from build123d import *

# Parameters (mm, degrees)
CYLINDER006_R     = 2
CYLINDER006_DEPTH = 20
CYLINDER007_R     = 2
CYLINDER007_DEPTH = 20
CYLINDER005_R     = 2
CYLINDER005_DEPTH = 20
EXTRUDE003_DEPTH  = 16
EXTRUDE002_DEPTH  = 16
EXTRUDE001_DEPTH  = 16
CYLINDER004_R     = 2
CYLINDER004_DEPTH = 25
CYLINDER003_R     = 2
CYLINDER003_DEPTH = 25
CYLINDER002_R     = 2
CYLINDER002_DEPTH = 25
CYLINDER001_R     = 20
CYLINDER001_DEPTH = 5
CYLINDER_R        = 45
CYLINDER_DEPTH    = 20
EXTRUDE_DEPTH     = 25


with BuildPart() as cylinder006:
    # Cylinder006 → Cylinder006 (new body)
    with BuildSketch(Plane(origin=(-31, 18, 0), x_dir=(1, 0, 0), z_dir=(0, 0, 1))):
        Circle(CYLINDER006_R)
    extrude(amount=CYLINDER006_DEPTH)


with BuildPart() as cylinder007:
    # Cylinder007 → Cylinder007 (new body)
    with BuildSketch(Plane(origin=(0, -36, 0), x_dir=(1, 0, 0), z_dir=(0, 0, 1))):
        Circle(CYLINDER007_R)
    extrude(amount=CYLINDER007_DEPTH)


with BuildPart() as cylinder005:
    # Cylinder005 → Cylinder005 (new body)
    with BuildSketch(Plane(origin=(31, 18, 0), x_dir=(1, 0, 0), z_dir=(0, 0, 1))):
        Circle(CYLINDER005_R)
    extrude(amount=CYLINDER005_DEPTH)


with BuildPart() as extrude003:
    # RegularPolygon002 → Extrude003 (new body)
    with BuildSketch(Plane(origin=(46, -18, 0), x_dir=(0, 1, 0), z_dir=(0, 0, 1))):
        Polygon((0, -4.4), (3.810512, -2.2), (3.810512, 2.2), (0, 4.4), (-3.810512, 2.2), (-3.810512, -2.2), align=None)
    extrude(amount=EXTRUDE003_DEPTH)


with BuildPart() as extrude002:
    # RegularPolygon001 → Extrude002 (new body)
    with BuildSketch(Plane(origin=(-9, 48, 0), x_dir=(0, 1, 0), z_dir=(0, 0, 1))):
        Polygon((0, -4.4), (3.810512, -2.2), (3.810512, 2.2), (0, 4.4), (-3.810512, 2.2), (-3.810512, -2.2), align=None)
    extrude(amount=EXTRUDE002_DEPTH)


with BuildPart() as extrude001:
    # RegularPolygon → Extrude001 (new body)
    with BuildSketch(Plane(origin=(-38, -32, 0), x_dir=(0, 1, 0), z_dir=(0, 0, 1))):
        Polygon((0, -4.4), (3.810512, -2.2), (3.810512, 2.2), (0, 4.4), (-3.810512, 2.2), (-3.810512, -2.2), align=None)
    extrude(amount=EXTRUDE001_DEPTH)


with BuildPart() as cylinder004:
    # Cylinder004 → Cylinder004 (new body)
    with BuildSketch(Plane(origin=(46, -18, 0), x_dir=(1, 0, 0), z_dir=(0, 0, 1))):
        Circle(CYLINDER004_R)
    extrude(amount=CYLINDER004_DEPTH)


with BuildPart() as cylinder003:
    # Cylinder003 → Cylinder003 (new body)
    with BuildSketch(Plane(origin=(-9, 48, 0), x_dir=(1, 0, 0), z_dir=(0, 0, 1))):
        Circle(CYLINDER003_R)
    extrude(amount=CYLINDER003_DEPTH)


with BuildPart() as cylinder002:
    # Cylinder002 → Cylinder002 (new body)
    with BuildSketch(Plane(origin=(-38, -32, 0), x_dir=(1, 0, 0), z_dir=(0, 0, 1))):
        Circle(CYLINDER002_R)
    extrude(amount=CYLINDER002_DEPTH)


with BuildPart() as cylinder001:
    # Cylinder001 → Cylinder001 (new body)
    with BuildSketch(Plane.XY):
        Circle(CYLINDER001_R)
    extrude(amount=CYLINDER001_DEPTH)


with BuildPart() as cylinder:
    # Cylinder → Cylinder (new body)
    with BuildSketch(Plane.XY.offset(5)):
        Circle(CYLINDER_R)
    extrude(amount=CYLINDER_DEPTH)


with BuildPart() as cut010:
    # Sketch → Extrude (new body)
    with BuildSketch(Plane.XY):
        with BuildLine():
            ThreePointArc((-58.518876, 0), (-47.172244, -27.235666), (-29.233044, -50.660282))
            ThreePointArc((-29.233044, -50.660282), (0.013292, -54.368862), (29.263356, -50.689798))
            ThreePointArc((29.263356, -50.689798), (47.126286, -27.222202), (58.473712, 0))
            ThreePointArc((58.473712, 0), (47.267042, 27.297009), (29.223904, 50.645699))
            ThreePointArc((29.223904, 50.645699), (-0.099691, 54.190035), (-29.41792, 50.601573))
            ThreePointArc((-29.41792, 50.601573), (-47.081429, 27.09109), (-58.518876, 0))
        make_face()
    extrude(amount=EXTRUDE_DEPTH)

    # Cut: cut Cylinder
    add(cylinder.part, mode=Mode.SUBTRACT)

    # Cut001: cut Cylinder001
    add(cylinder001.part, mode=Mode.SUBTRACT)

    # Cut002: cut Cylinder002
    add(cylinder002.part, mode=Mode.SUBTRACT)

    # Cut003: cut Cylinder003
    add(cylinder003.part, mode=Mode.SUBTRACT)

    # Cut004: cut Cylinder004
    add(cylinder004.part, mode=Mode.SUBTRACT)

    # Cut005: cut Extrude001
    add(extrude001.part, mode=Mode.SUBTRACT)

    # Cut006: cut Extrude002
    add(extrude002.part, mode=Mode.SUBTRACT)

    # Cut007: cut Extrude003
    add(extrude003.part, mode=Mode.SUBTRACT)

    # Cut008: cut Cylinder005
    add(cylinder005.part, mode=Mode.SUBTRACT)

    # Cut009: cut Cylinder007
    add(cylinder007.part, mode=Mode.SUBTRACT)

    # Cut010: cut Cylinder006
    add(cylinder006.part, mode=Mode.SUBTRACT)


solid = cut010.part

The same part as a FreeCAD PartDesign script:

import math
import FreeCAD as App
import Part
import Sketcher
from FreeCAD import Vector
Q = App.Units.Quantity


def add_polygon(sketch, points):
    """Adds a closed chain of lines whose ends are joined by coincident constraints."""
    first, n = sketch.GeometryCount, len(points)
    for a, b in zip(points, points[1:] + points[:1]):
        sketch.addGeometry(Part.LineSegment(App.Vector(*a, 0), App.Vector(*b, 0)), False)
    for i in range(n):
        sketch.addConstraint(Sketcher.Constraint("Coincident", first + i, 2, first + (i + 1) % n, 1))

doc = App.newDocument("Part")
body = doc.addObject("PartDesign::Body", "Body")

# Sketch on XY plane
sketch1 = doc.addObject("Sketcher::SketchObject", "Sketch")
body.addObject(sketch1)
sketch1.AttachmentSupport = (doc.XY_Plane, [""])
sketch1.MapMode = "FlatFace"
sketch1.addGeometry(Part.Circle(Vector(-31, 18, 0), Vector(0, 0, 1), 2), False)
sketch1.addConstraint([
    Sketcher.Constraint("Diameter", 0, Q("4 mm")),
    Sketcher.Constraint("DistanceX", 0, 3, -1, 1, Q("31 mm")),
    Sketcher.Constraint("DistanceY", -1, 1, 0, 3, Q("18 mm")),
])
pad1 = doc.addObject("PartDesign::Pad", "Pad")
body.addObject(pad1)
pad1.Profile = sketch1
pad1.Length = 20
body2 = doc.addObject("PartDesign::Body", "Body001")

# Sketch on XY plane
sketch2 = doc.addObject("Sketcher::SketchObject", "Sketch001")
body2.addObject(sketch2)
sketch2.AttachmentSupport = (doc.getObject("XY_Plane001"), [""])
sketch2.MapMode = "FlatFace"
sketch2.addGeometry(Part.Circle(Vector(0, -36, 0), Vector(0, 0, 1), 2), False)
sketch2.addConstraint([
    Sketcher.Constraint("PointOnObject", 0, 3, -2),
    Sketcher.Constraint("Diameter", 0, Q("4 mm")),
    Sketcher.Constraint("DistanceY", 0, 3, -1, 1, Q("36 mm")),
])
pad2 = doc.addObject("PartDesign::Pad", "Pad001")
body2.addObject(pad2)
pad2.Profile = sketch2
pad2.Length = 20
body3 = doc.addObject("PartDesign::Body", "Body002")

# Sketch on XY plane
sketch3 = doc.addObject("Sketcher::SketchObject", "Sketch002")
body3.addObject(sketch3)
sketch3.AttachmentSupport = (doc.getObject("XY_Plane002"), [""])
sketch3.MapMode = "FlatFace"
sketch3.addGeometry(Part.Circle(Vector(31, 18, 0), Vector(0, 0, 1), 2), False)
sketch3.addConstraint([
    Sketcher.Constraint("Diameter", 0, Q("4 mm")),
    Sketcher.Constraint("DistanceX", -1, 1, 0, 3, Q("31 mm")),
    Sketcher.Constraint("DistanceY", -1, 1, 0, 3, Q("18 mm")),
])
pad3 = doc.addObject("PartDesign::Pad", "Pad002")
body3.addObject(pad3)
pad3.Profile = sketch3
pad3.Length = 20
body4 = doc.addObject("PartDesign::Body", "Body003")

# Sketch on XY plane
sketch4 = doc.addObject("Sketcher::SketchObject", "Sketch003")
body4.addObject(sketch4)
sketch4.AttachmentSupport = (doc.getObject("XY_Plane003"), [""])
sketch4.MapMode = "FlatFace"
add_polygon(sketch4, [(50.4, -18), (48.2, -14.189488), (43.8, -14.189488), (41.6, -18), (43.8, -21.810512), (48.2, -21.810512)])  # lines 0-5
sketch4.addConstraint([
    Sketcher.Constraint("Horizontal", 1),
    Sketcher.Constraint("Horizontal", 4),
    Sketcher.Constraint("Parallel", 0, 3),
    Sketcher.Constraint("Parallel", 2, 5),
    Sketcher.Constraint("Horizontal", 2, 2, 5, 2),
    Sketcher.Constraint("Vertical", 1, 2, 3, 2),
    Sketcher.Constraint("Vertical", 0, 2, 4, 2),
    Sketcher.Constraint("Angle", 0, Q("119.999999 deg")),
    Sketcher.Constraint("DistanceX", 1, 2, 1, 1, Q("4.4 mm")),
    Sketcher.Constraint("DistanceY", 2, 2, -1, 1, Q("18 mm")),
    Sketcher.Constraint("Distance", 0, Q("4.4 mm")),
    Sketcher.Constraint("DistanceX", -1, 1, 0, 2, Q("48.2 mm")),
])
pad4 = doc.addObject("PartDesign::Pad", "Pad003")
body4.addObject(pad4)
pad4.Profile = sketch4
pad4.Length = 16
body5 = doc.addObject("PartDesign::Body", "Body004")

# Sketch on XY plane
sketch5 = doc.addObject("Sketcher::SketchObject", "Sketch004")
body5.addObject(sketch5)
sketch5.AttachmentSupport = (doc.getObject("XY_Plane004"), [""])
sketch5.MapMode = "FlatFace"
add_polygon(sketch5, [(-4.6, 48), (-6.8, 51.810512), (-11.2, 51.810512), (-13.4, 48), (-11.2, 44.189488), (-6.8, 44.189488)])  # lines 0-5
sketch5.addConstraint([
    Sketcher.Constraint("Horizontal", 1),
    Sketcher.Constraint("Horizontal", 4),
    Sketcher.Constraint("Parallel", 0, 3),
    Sketcher.Constraint("Parallel", 2, 5),
    Sketcher.Constraint("Horizontal", 2, 2, 5, 2),
    Sketcher.Constraint("Vertical", 1, 2, 3, 2),
    Sketcher.Constraint("Vertical", 0, 2, 4, 2),
    Sketcher.Constraint("Angle", 0, Q("119.999999 deg")),
    Sketcher.Constraint("DistanceX", 1, 2, 1, 1, Q("4.4 mm")),
    Sketcher.Constraint("DistanceY", -1, 1, 2, 2, Q("48 mm")),
    Sketcher.Constraint("Distance", 0, Q("4.4 mm")),
    Sketcher.Constraint("DistanceX", 0, 2, -1, 1, Q("6.8 mm")),
])
pad5 = doc.addObject("PartDesign::Pad", "Pad004")
body5.addObject(pad5)
pad5.Profile = sketch5
pad5.Length = 16
body6 = doc.addObject("PartDesign::Body", "Body005")

# Sketch on XY plane
sketch6 = doc.addObject("Sketcher::SketchObject", "Sketch005")
body6.addObject(sketch6)
sketch6.AttachmentSupport = (doc.getObject("XY_Plane005"), [""])
sketch6.MapMode = "FlatFace"
add_polygon(sketch6, [(-33.6, -32), (-35.8, -28.189488), (-40.2, -28.189488), (-42.4, -32), (-40.2, -35.810512), (-35.8, -35.810512)])  # lines 0-5
sketch6.addConstraint([
    Sketcher.Constraint("Horizontal", 1),
    Sketcher.Constraint("Horizontal", 4),
    Sketcher.Constraint("Parallel", 0, 3),
    Sketcher.Constraint("Parallel", 2, 5),
    Sketcher.Constraint("Horizontal", 2, 2, 5, 2),
    Sketcher.Constraint("Vertical", 1, 2, 3, 2),
    Sketcher.Constraint("Vertical", 0, 2, 4, 2),
    Sketcher.Constraint("Angle", 0, Q("119.999999 deg")),
    Sketcher.Constraint("DistanceX", 1, 2, 1, 1, Q("4.4 mm")),
    Sketcher.Constraint("DistanceY", 2, 2, -1, 1, Q("32 mm")),
    Sketcher.Constraint("Distance", 0, Q("4.4 mm")),
    Sketcher.Constraint("DistanceX", 0, 2, -1, 1, Q("35.8 mm")),
])
pad6 = doc.addObject("PartDesign::Pad", "Pad005")
body6.addObject(pad6)
pad6.Profile = sketch6
pad6.Length = 16
body7 = doc.addObject("PartDesign::Body", "Body006")

# Sketch on XY plane
sketch7 = doc.addObject("Sketcher::SketchObject", "Sketch006")
body7.addObject(sketch7)
sketch7.AttachmentSupport = (doc.getObject("XY_Plane006"), [""])
sketch7.MapMode = "FlatFace"
sketch7.addGeometry(Part.Circle(Vector(46, -18, 0), Vector(0, 0, 1), 2), False)
sketch7.addConstraint([
    Sketcher.Constraint("Diameter", 0, Q("4 mm")),
    Sketcher.Constraint("DistanceX", -1, 1, 0, 3, Q("46 mm")),
    Sketcher.Constraint("DistanceY", 0, 3, -1, 1, Q("18 mm")),
])
pad7 = doc.addObject("PartDesign::Pad", "Pad006")
body7.addObject(pad7)
pad7.Profile = sketch7
pad7.Length = 25
body8 = doc.addObject("PartDesign::Body", "Body007")

# Sketch on XY plane
sketch8 = doc.addObject("Sketcher::SketchObject", "Sketch007")
body8.addObject(sketch8)
sketch8.AttachmentSupport = (doc.getObject("XY_Plane007"), [""])
sketch8.MapMode = "FlatFace"
sketch8.addGeometry(Part.Circle(Vector(-9, 48, 0), Vector(0, 0, 1), 2), False)
sketch8.addConstraint([
    Sketcher.Constraint("Diameter", 0, Q("4 mm")),
    Sketcher.Constraint("DistanceX", 0, 3, -1, 1, Q("9 mm")),
    Sketcher.Constraint("DistanceY", -1, 1, 0, 3, Q("48 mm")),
])
pad8 = doc.addObject("PartDesign::Pad", "Pad007")
body8.addObject(pad8)
pad8.Profile = sketch8
pad8.Length = 25
body9 = doc.addObject("PartDesign::Body", "Body008")

# Sketch on XY plane
sketch9 = doc.addObject("Sketcher::SketchObject", "Sketch008")
body9.addObject(sketch9)
sketch9.AttachmentSupport = (doc.getObject("XY_Plane008"), [""])
sketch9.MapMode = "FlatFace"
sketch9.addGeometry(Part.Circle(Vector(-38, -32, 0), Vector(0, 0, 1), 2), False)
sketch9.addConstraint([
    Sketcher.Constraint("Diameter", 0, Q("4 mm")),
    Sketcher.Constraint("DistanceX", 0, 3, -1, 1, Q("38 mm")),
    Sketcher.Constraint("DistanceY", 0, 3, -1, 1, Q("32 mm")),
])
pad9 = doc.addObject("PartDesign::Pad", "Pad008")
body9.addObject(pad9)
pad9.Profile = sketch9
pad9.Length = 25
body10 = doc.addObject("PartDesign::Body", "Body009")

# Sketch on XY plane
sketch10 = doc.addObject("Sketcher::SketchObject", "Sketch009")
body10.addObject(sketch10)
sketch10.AttachmentSupport = (doc.getObject("XY_Plane009"), [""])
sketch10.MapMode = "FlatFace"
sketch10.addGeometry(Part.Circle(Vector(0, 0, 0), Vector(0, 0, 1), 20), False)
sketch10.addConstraint([
    Sketcher.Constraint("Coincident", 0, 3, -1, 1),
    Sketcher.Constraint("Diameter", 0, Q("40 mm")),
])
pad10 = doc.addObject("PartDesign::Pad", "Pad009")
body10.addObject(pad10)
pad10.Profile = sketch10
pad10.Length = 5
body11 = doc.addObject("PartDesign::Body", "Body010")

# Sketch on XY plane
sketch11 = doc.addObject("Sketcher::SketchObject", "Sketch010")
body11.addObject(sketch11)
sketch11.AttachmentSupport = (doc.getObject("XY_Plane010"), [""])
sketch11.MapMode = "FlatFace"
sketch11.AttachmentOffset = App.Placement(Vector(0, 0, 5), App.Rotation())
sketch11.addGeometry(Part.Circle(Vector(0, 0, 0), Vector(0, 0, 1), 45), False)
sketch11.addConstraint([
    Sketcher.Constraint("Coincident", 0, 3, -1, 1),
    Sketcher.Constraint("Diameter", 0, Q("90 mm")),
])
pad11 = doc.addObject("PartDesign::Pad", "Pad010")
body11.addObject(pad11)
pad11.Profile = sketch11
pad11.Length = 20
body12 = doc.addObject("PartDesign::Body", "Body011")

# Sketch on XY plane
sketch12 = doc.addObject("Sketcher::SketchObject", "Sketch011")
body12.addObject(sketch12)
sketch12.AttachmentSupport = (doc.getObject("XY_Plane011"), [""])
sketch12.MapMode = "FlatFace"
sketch12.addGeometry([
    Part.ArcOfCircle(Part.Circle(Vector(51.800039, 29.978498, 0), Vector(0, 0, 1), 114.319611), math.radians(-164.797334), math.radians(-135.139739)),  # 0
    Part.ArcOfCircle(Part.Circle(Vector(0.072652, 63.273721, 0), Vector(0, 0, 1), 117.642598), math.radians(-104.424726), math.radians(-75.633094)),  # 1
    Part.ArcOfCircle(Part.Circle(Vector(-53.092642, 30.529667, 0), Vector(0, 0, 1), 115.668112), math.radians(-44.601912), math.radians(-15.304093)),  # 2
    Part.ArcOfCircle(Part.Circle(Vector(-48.240028, -27.861939, 0), Vector(0, 0, 1), 110.291024), math.radians(14.632723), math.radians(45.383397)),  # 3
    Part.ArcOfCircle(Part.Circle(Vector(-0.007655, -68.123128, 0), Vector(0, 0, 1), 122.313197), math.radians(76.173098), math.radians(103.913129)),  # 4
    Part.ArcOfCircle(Part.Circle(Vector(57.289643, -32.932696, 0), Vector(0, 0, 1), 120.400065), math.radians(136.067865), math.radians(164.125734)),  # 5
], False)
sketch12.addConstraint([
    Sketcher.Constraint("Coincident", 0, 2, 1, 1),
    Sketcher.Constraint("Coincident", 1, 2, 2, 1),
    Sketcher.Constraint("Coincident", 2, 2, 3, 1),
    Sketcher.Constraint("Coincident", 3, 2, 4, 1),
    Sketcher.Constraint("Coincident", 4, 2, 5, 1),
    Sketcher.Constraint("Coincident", 5, 2, 0, 1),
    Sketcher.Constraint("PointOnObject", 2, 2, -1),
    Sketcher.Constraint("PointOnObject", 5, 2, -1),
    Sketcher.Constraint("Radius", 1, Q("117.642598 mm")),
    Sketcher.Constraint("Radius", 0, Q("114.319611 mm")),
    Sketcher.Constraint("Radius", 2, Q("115.668112 mm")),
    Sketcher.Constraint("Radius", 3, Q("110.291024 mm")),
    Sketcher.Constraint("Radius", 4, Q("122.313197 mm")),
    Sketcher.Constraint("Radius", 5, Q("120.400065 mm")),
    Sketcher.Constraint("DistanceY", 1, 2, -1, 1, Q("50.689798 mm")),
    Sketcher.Constraint("DistanceY", -1, 1, 3, 2, Q("50.645699 mm")),
    Sketcher.Constraint("DistanceX", 4, 3, 5, 3, Q("57.297299 mm")),
    Sketcher.Constraint("DistanceX", 2, 3, 0, 2, Q("23.859598 mm")),
    Sketcher.Constraint("DistanceX", 0, 2, 1, 2, Q("58.4964 mm")),
    Sketcher.Constraint("DistanceY", 0, 3, 3, 2, Q("20.667201 mm")),
    Sketcher.Constraint("DistanceX", -1, 1, 0, 3, Q("51.800039 mm")),
    Sketcher.Constraint("DistanceY", -1, 1, 1, 3, Q("63.273721 mm")),
    Sketcher.Constraint("DistanceX", 3, 3, -1, 1, Q("48.240028 mm")),
    Sketcher.Constraint("DistanceX", 4, 2, -1, 1, Q("29.41792 mm")),
])
pad12 = doc.addObject("PartDesign::Pad", "Pad011")
body12.addObject(pad12)
pad12.Profile = sketch12
pad12.Length = 25
doc.recompute()

boolean = doc.addObject("PartDesign::Boolean", "Boolean")
body12.addObject(boolean)
boolean.Type = "Cut"
boolean.addObjects([body11])
doc.recompute()

boolean2 = doc.addObject("PartDesign::Boolean", "Boolean001")
body12.addObject(boolean2)
boolean2.Type = "Cut"
boolean2.addObjects([body10])
doc.recompute()

boolean3 = doc.addObject("PartDesign::Boolean", "Boolean002")
body12.addObject(boolean3)
boolean3.Type = "Cut"
boolean3.addObjects([body9])
doc.recompute()

boolean4 = doc.addObject("PartDesign::Boolean", "Boolean003")
body12.addObject(boolean4)
boolean4.Type = "Cut"
boolean4.addObjects([body8])
doc.recompute()

boolean5 = doc.addObject("PartDesign::Boolean", "Boolean004")
body12.addObject(boolean5)
boolean5.Type = "Cut"
boolean5.addObjects([body7])
doc.recompute()

boolean6 = doc.addObject("PartDesign::Boolean", "Boolean005")
body12.addObject(boolean6)
boolean6.Type = "Cut"
boolean6.addObjects([body6])
doc.recompute()

boolean7 = doc.addObject("PartDesign::Boolean", "Boolean006")
body12.addObject(boolean7)
boolean7.Type = "Cut"
boolean7.addObjects([body5])
doc.recompute()

boolean8 = doc.addObject("PartDesign::Boolean", "Boolean007")
body12.addObject(boolean8)
boolean8.Type = "Cut"
boolean8.addObjects([body4])
doc.recompute()

boolean9 = doc.addObject("PartDesign::Boolean", "Boolean008")
body12.addObject(boolean9)
boolean9.Type = "Cut"
boolean9.addObjects([body3])
doc.recompute()

boolean10 = doc.addObject("PartDesign::Boolean", "Boolean009")
body12.addObject(boolean10)
boolean10.Type = "Cut"
boolean10.addObjects([body2])
doc.recompute()

boolean11 = doc.addObject("PartDesign::Boolean", "Boolean010")
body12.addObject(boolean11)
boolean11.Type = "Cut"
boolean11.addObjects([body])

doc.recompute()
